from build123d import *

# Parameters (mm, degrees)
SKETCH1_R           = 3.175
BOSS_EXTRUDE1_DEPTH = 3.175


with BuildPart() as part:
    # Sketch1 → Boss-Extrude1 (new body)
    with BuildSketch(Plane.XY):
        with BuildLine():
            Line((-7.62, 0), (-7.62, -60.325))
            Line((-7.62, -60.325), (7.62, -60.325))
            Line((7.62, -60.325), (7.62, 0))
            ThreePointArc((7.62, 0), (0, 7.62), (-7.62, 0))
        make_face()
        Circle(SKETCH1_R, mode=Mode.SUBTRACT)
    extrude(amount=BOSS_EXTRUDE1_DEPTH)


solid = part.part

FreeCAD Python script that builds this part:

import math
import FreeCAD as App
import Part
import Sketcher

V = App.Vector
Q = App.Units.Quantity

doc = App.newDocument("Part")
body = doc.addObject("PartDesign::Body", "Body")

# Sketch on XY plane
sketch1 = body.newObject("Sketcher::SketchObject", "Sketch")
sketch1.AttachmentSupport = (doc.getObject("XY_Plane"), [""])
sketch1.MapMode = "FlatFace"
sketch1.addGeometry([
    Part.LineSegment(V(-7.6, 0, 0), V(-7.6, -60.3, 0)),  # 0
    Part.LineSegment(V(-7.6, -60.3, 0), V(7.6, -60.3, 0)),  # 1
    Part.LineSegment(V(7.6, -60.3, 0), V(7.6, 0, 0)),  # 2
    Part.ArcOfCircle(Part.Circle(V(0, 0, 0), V(0, 0, 1), 7.6), math.radians(0), math.radians(180)),  # 3
    Part.Circle(V(0, 0, 0), V(0, 0, 1), 3.2),  # 4
], False)
sketch1.addConstraint([
    Sketcher.Constraint("Coincident", 0, 2, 1, 1),
    Sketcher.Constraint("Coincident", 1, 2, 2, 1),
    Sketcher.Constraint("Tangent", 2, 2, 3, 1),
    Sketcher.Constraint("Tangent", 3, 2, 0, 1),
    Sketcher.Constraint("Vertical", 0),
    Sketcher.Constraint("Horizontal", 1),
    Sketcher.Constraint("Vertical", 2),
    Sketcher.Constraint("Coincident", 3, 3, -1, 1),
    Sketcher.Constraint("Coincident", 4, 3, -1, 1),
    Sketcher.Constraint("Radius", 3, Q("0.3 in")),
    Sketcher.Constraint("Diameter", 4, Q("0.25 in")),
    Sketcher.Constraint("DistanceY", 0, 2, 0, 1, Q("2.375 in")),
])
pad1 = body.newObject("PartDesign::Pad", "Pad")
pad1.Profile = sketch1
pad1.Length = Q("0.125 in")

doc.recompute()
